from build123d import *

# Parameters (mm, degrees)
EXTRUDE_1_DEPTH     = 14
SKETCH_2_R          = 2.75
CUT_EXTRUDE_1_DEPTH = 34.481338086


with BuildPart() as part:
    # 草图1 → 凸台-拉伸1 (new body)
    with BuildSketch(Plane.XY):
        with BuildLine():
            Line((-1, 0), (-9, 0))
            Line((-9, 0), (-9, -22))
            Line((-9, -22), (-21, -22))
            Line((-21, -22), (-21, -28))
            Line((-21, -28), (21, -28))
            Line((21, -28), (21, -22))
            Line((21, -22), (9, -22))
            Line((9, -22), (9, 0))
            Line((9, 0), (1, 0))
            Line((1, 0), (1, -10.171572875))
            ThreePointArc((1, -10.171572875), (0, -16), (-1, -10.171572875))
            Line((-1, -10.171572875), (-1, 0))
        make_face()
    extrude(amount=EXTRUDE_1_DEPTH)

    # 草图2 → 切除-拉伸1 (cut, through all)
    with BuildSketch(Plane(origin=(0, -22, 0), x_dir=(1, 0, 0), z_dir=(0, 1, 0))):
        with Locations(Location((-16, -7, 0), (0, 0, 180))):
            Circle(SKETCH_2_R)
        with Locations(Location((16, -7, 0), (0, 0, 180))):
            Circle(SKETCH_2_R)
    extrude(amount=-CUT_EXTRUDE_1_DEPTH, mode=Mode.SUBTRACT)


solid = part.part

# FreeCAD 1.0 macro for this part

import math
import FreeCAD as App
import Part
import Sketcher
from FreeCAD import Vector
Q = App.Units.Quantity

doc = App.newDocument("Part")
body = doc.addObject("PartDesign::Body", "Body")

sketch1 = doc.addObject("Sketcher::SketchObject", "Sketch")
body.addObject(sketch1)
sketch1.AttachmentSupport = (doc.XY_Plane, [""])
sketch1.MapMode = "FlatFace"
sketch1.addGeometry([
    Part.LineSegment(Vector(-1, 0, 0), Vector(-9, 0, 0)),
    Part.LineSegment(Vector(-9, 0, 0), Vector(-9, -22, 0)),
    Part.LineSegment(Vector(-9, -22, 0), Vector(-21, -22, 0)),
    Part.LineSegment(Vector(-21, -22, 0), Vector(-21, -28, 0)),
    Part.LineSegment(Vector(-21, -28, 0), Vector(21, -28, 0)),
    Part.LineSegment(Vector(21, -28, 0), Vector(21, -22, 0)),
    Part.LineSegment(Vector(21, -22, 0), Vector(9, -22, 0)),
    Part.LineSegment(Vector(9, -22, 0), Vector(9, 0, 0)),
    Part.LineSegment(Vector(9, 0, 0), Vector(1, 0, 0)),
    Part.LineSegment(Vector(1, 0, 0), Vector(1, -10.2, 0)),
    Part.ArcOfCircle(Part.Circle(Vector(0, -13, 0), Vector(0, 0, 1), 3), math.radians(109), math.radians(431)),
    Part.LineSegment(Vector(-1, -10.2, 0), Vector(-1, 0, 0)),
], False)
sketch1.addConstraint([
    Sketcher.Constraint("Coincident", 0, 2, 1, 1),
    Sketcher.Constraint("Coincident", 1, 2, 2, 1),
    Sketcher.Constraint("Coincident", 2, 2, 3, 1),
    Sketcher.Constraint("Coincident", 3, 2, 4, 1),
    Sketcher.Constraint("Coincident", 4, 2, 5, 1),
    Sketcher.Constraint("Coincident", 5, 2, 6, 1),
    Sketcher.Constraint("Coincident", 6, 2, 7, 1),
    Sketcher.Constraint("Coincident", 7, 2, 8, 1),
    Sketcher.Constraint("Coincident", 8, 2, 9, 1),
    Sketcher.Constraint("Coincident", 9, 2, 10, 2),
    Sketcher.Constraint("Coincident", 10, 1, 11, 1),
    Sketcher.Constraint("Coincident", 11, 2, 0, 1),
    Sketcher.Constraint("Horizontal", 0),
    Sketcher.Constraint("Vertical", 1),
    Sketcher.Constraint("Horizontal", 2),
    Sketcher.Constraint("Vertical", 3),
    Sketcher.Constraint("Horizontal", 4),
    Sketcher.Constraint("Vertical", 5),
    Sketcher.Constraint("Horizontal", 6),
    Sketcher.Constraint("Vertical", 7),
    Sketcher.Constraint("Horizontal", 8),
    Sketcher.Constraint("Vertical", 9),
    Sketcher.Constraint("Vertical", 11),
    Sketcher.Constraint("Symmetric", 0, 2, 7, 2, -1, 1),
    Sketcher.Constraint("Symmetric", 2, 2, 5, 2, -2),
    Sketcher.Constraint("Symmetric", 9, 2, 10, 1, -2),
    Sketcher.Constraint("PointOnObject", 0, 2, -1),
    Sketcher.Constraint("Radius", 10, Q("3 mm")),
    Sketcher.Constraint("DistanceX", 0, 2, 0, 1, Q("8 mm")),
    Sketcher.Constraint("DistanceX", 2, 2, 2, 1, Q("12 mm")),
    Sketcher.Constraint("DistanceX", 4, 1, 4, 2, Q("42 mm")),
    Sketcher.Constraint("DistanceY", 1, 2, 1, 1, Q("22 mm")),
    Sketcher.Constraint("DistanceY", 3, 2, 3, 1, Q("6 mm")),
    Sketcher.Constraint("DistanceY", 10, 3, -1, 1, Q("13 mm")),
])
pad1 = doc.addObject("PartDesign::Pad", "Pad")
body.addObject(pad1)
pad1.Profile = sketch1
pad1.Length = 14

sketch2 = doc.addObject("Sketcher::SketchObject", "Sketch001")
body.addObject(sketch2)
sketch2.AttachmentSupport = (doc.XZ_Plane, [""])
sketch2.MapMode = "FlatFace"
sketch2.AttachmentOffset = App.Placement(Vector(0, 0, 22), App.Rotation())
sketch2.addGeometry([
    Part.Circle(Vector(-16, 7, 0), Vector(0, 0, 1), 2.8),
    Part.Circle(Vector(16, 7, 0), Vector(0, 0, 1), 2.8),
], False)
sketch2.addConstraint([
    Sketcher.Constraint("Equal", 0, 1),
    Sketcher.Constraint("Symmetric", 0, 3, 1, 3, -2),
    Sketcher.Constraint("Diameter", 0, Q("5.5 mm")),
    Sketcher.Constraint("DistanceX", 0, 3, -1, 1, Q("16 mm")),
    Sketcher.Constraint("DistanceY", -1, 1, 0, 3, Q("7 mm")),
])
pocket1 = doc.addObject("PartDesign::Pocket", "Pocket")
body.addObject(pocket1)
pocket1.Profile = sketch2
pocket1.Type = "ThroughAll"
pocket1.Reversed = True

doc.recompute()
